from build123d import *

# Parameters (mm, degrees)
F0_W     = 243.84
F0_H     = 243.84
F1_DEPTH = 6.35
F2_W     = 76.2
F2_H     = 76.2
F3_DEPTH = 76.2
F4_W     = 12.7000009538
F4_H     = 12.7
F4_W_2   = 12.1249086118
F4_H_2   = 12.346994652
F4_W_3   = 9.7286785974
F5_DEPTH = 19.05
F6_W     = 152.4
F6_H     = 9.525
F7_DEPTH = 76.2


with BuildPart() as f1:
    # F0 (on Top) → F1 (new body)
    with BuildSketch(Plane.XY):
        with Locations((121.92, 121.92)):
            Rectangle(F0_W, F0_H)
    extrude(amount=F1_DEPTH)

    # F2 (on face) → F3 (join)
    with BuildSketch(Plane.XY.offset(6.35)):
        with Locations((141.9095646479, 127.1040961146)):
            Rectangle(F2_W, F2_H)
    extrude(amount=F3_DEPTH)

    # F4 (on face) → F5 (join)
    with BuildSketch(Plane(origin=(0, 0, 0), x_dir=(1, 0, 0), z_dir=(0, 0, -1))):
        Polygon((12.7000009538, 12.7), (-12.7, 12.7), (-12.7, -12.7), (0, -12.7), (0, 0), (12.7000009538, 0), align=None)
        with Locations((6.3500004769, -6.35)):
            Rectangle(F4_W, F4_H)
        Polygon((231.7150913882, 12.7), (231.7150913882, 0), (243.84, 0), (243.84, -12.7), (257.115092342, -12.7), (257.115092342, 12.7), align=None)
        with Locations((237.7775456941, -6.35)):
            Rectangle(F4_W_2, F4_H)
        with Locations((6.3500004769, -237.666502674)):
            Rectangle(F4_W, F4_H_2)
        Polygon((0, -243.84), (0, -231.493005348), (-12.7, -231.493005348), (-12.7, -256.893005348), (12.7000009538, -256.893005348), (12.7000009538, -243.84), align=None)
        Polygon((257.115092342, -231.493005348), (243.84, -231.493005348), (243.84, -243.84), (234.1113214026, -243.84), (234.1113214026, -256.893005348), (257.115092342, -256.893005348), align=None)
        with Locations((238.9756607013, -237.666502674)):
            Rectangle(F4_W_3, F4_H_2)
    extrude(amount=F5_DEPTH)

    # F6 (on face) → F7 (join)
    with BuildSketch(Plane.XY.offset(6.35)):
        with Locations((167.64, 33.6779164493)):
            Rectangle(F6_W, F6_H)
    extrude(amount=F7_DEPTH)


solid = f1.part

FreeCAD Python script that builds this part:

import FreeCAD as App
import Part
import Sketcher
from FreeCAD import Vector
Q = App.Units.Quantity

doc = App.newDocument("Part")
params = doc.addObject("Spreadsheet::Sheet", "Params")
for row, (alias, value) in enumerate([
    ("sketch1_width", "9.6 in"),
    ("pad1_length", "0.25 in"),
    ("sketch2_width", "3 in"),
    ("pad2_length", "3 in"),
    ("sketch3_width", "1 in"),
    ("pad3_length", "0.75 in"),
    ("sketch4_width", "6 in"),
    ("sketch4_height", "0.375 in"),
    ("pad4_length", "3 in"),
], start=1):
    params.set(f"A{row}", alias)
    params.set(f"B{row}", "=" + value)
    params.setAlias(f"B{row}", alias)

body = doc.addObject("PartDesign::Body", "Body")

sketch1 = body.newObject("Sketcher::SketchObject", "Sketch")
sketch1.AttachmentSupport = (doc.getObject("XY_Plane"), [""])
sketch1.MapMode = "FlatFace"
sketch1.addGeometry([
    Part.LineSegment(Vector(0, 244, 0), Vector(0, 0, 0)),
    Part.LineSegment(Vector(0, 0, 0), Vector(244, 0, 0)),
    Part.LineSegment(Vector(244, 0, 0), Vector(244, 244, 0)),
    Part.LineSegment(Vector(244, 244, 0), Vector(0, 244, 0)),
], False)
sketch1.addConstraint([
    Sketcher.Constraint("Coincident", 0, 2, 1, 1),
    Sketcher.Constraint("Coincident", 1, 2, 2, 1),
    Sketcher.Constraint("Coincident", 2, 2, 3, 1),
    Sketcher.Constraint("Coincident", 3, 2, 0, 1),
    Sketcher.Constraint("Vertical", 0),
    Sketcher.Constraint("Horizontal", 1),
    Sketcher.Constraint("Vertical", 2),
    Sketcher.Constraint("Horizontal", 3),
    Sketcher.Constraint("Coincident", 0, 2, -1, 1),
    Sketcher.Constraint("Equal", 3, 0),
    Sketcher.Constraint("DistanceX", 1, 1, 1, 2, Q("9.6 in")),
])
sketch1.setExpression("Constraints[10]", "Params.sketch1_width")
pad1 = body.newObject("PartDesign::Pad", "Pad")
pad1.Profile = sketch1
pad1.setExpression("Length", "Params.pad1_length")

sketch2 = body.newObject("Sketcher::SketchObject", "Sketch001")
sketch2.AttachmentSupport = (doc.getObject("XY_Plane"), [""])
sketch2.MapMode = "FlatFace"
sketch2.AttachmentOffset = App.Placement(Vector(0, 0, 0.25 * 25.4), App.Rotation())
sketch2.addGeometry([
    Part.LineSegment(Vector(104, 165, 0), Vector(104, 89, 0)),
    Part.LineSegment(Vector(104, 89, 0), Vector(180, 89, 0)),
    Part.LineSegment(Vector(180, 89, 0), Vector(180, 165, 0)),
    Part.LineSegment(Vector(180, 165, 0), Vector(104, 165, 0)),
], False)
sketch2.addConstraint([
    Sketcher.Constraint("Coincident", 0, 2, 1, 1),
    Sketcher.Constraint("Coincident", 1, 2, 2, 1),
    Sketcher.Constraint("Coincident", 2, 2, 3, 1),
    Sketcher.Constraint("Coincident", 3, 2, 0, 1),
    Sketcher.Constraint("Vertical", 0),
    Sketcher.Constraint("Horizontal", 1),
    Sketcher.Constraint("Vertical", 2),
    Sketcher.Constraint("Horizontal", 3),
    Sketcher.Constraint("Equal", 3, 0),
    Sketcher.Constraint("DistanceX", 1, 1, 1, 2, Q("3 in")),
    Sketcher.Constraint("DistanceX", -1, 1, 0, 2, Q("103.809565 mm")),
    Sketcher.Constraint("DistanceY", -1, 1, 0, 2, Q("89.004096 mm")),
])
sketch2.setExpression("Constraints[9]", "Params.sketch2_width")
pad2 = body.newObject("PartDesign::Pad", "Pad001")
pad2.Profile = sketch2
pad2.setExpression("Length", "Params.pad2_length")

sketch3 = body.newObject("Sketcher::SketchObject", "Sketch002")
sketch3.AttachmentSupport = (doc.getObject("XY_Plane"), [""])
sketch3.MapMode = "FlatFace"
sketch3.addGeometry([
    Part.LineSegment(Vector(13, -13, 0), Vector(-13, -13, 0)),
    Part.LineSegment(Vector(-13, -13, 0), Vector(-13, 13, 0)),
    Part.LineSegment(Vector(-13, 13, 0), Vector(13, 13, 0)),
    Part.LineSegment(Vector(13, 13, 0), Vector(13, -13, 0)),
    Part.LineSegment(Vector(232, -13, 0), Vector(232, 13, 0)),
    Part.LineSegment(Vector(232, 13, 0), Vector(257, 13, 0)),
    Part.LineSegment(Vector(257, 13, 0), Vector(257, -13, 0)),
    Part.LineSegment(Vector(257, -13, 0), Vector(232, -13, 0)),
    Part.LineSegment(Vector(13, 231, 0), Vector(-13, 231, 0)),
    Part.LineSegment(Vector(-13, 231, 0), Vector(-13, 257, 0)),
    Part.LineSegment(Vector(-13, 257, 0), Vector(13, 257, 0)),
    Part.LineSegment(Vector(13, 257, 0), Vector(13, 231, 0)),
    Part.LineSegment(Vector(257, 231, 0), Vector(234, 231, 0)),
    Part.LineSegment(Vector(234, 231, 0), Vector(234, 257, 0)),
    Part.LineSegment(Vector(234, 257, 0), Vector(257, 257, 0)),
    Part.LineSegment(Vector(257, 257, 0), Vector(257, 231, 0)),
], False)
sketch3.addConstraint([
    Sketcher.Constraint("Coincident", 0, 2, 1, 1),
    Sketcher.Constraint("Coincident", 1, 2, 2, 1),
    Sketcher.Constraint("Coincident", 2, 2, 3, 1),
    Sketcher.Constraint("Coincident", 3, 2, 0, 1),
    Sketcher.Constraint("Coincident", 4, 2, 5, 1),
    Sketcher.Constraint("Coincident", 5, 2, 6, 1),
    Sketcher.Constraint("Coincident", 6, 2, 7, 1),
    Sketcher.Constraint("Coincident", 7, 2, 4, 1),
    Sketcher.Constraint("Coincident", 8, 2, 9, 1),
    Sketcher.Constraint("Coincident", 9, 2, 10, 1),
    Sketcher.Constraint("Coincident", 10, 2, 11, 1),
    Sketcher.Constraint("Coincident", 11, 2, 8, 1),
    Sketcher.Constraint("Coincident", 12, 2, 13, 1),
    Sketcher.Constraint("Coincident", 13, 2, 14, 1),
    Sketcher.Constraint("Coincident", 14, 2, 15, 1),
    Sketcher.Constraint("Coincident", 15, 2, 12, 1),
    Sketcher.Constraint("Horizontal", 0),
    Sketcher.Constraint("Vertical", 1),
    Sketcher.Constraint("Horizontal", 2),
    Sketcher.Constraint("Vertical", 3),
    Sketcher.Constraint("Vertical", 4),
    Sketcher.Constraint("Horizontal", 5),
    Sketcher.Constraint("Vertical", 6),
    Sketcher.Constraint("Horizontal", 7),
    Sketcher.Constraint("Horizontal", 8),
    Sketcher.Constraint("Vertical", 9),
    Sketcher.Constraint("Horizontal", 10),
    Sketcher.Constraint("Vertical", 11),
    Sketcher.Constraint("Horizontal", 12),
    Sketcher.Constraint("Vertical", 13),
    Sketcher.Constraint("Horizontal", 14),
    Sketcher.Constraint("Vertical", 15),
    Sketcher.Constraint("Symmetric", 0, 2, 2, 2, -1, 1),
    Sketcher.Constraint("Horizontal", 2, 2, 4, 2),
    Sketcher.Constraint("Horizontal", 3, 2, 6, 2),
    Sketcher.Constraint("Horizontal", 11, 2, 12, 2),
    Sketcher.Constraint("Horizontal", 10, 2, 13, 2),
    Sketcher.Constraint("Vertical", 1, 2, 8, 2),
    Sketcher.Constraint("Vertical", 3, 2, 10, 2),
    Sketcher.Constraint("Vertical", 6, 2, 14, 2),
    Sketcher.Constraint("Equal", 2, 5),
    Sketcher.Constraint("Equal", 10, 1),
    Sketcher.Constraint("Equal", 6, 9),
    Sketcher.Constraint("DistanceX", 0, 2, 0, 1, Q("1 in")),
    Sketcher.Constraint("DistanceX", 12, 2, 12, 1, Q("23.003771 mm")),
    Sketcher.Constraint("DistanceX", -1, 1, 4, 2, Q("231.715091 mm")),
    Sketcher.Constraint("DistanceY", -1, 1, 8, 2, Q("231.493005 mm")),
])
sketch3.setExpression("Constraints[43]", "Params.sketch3_width")
pad3 = body.newObject("PartDesign::Pad", "Pad002")
pad3.Profile = sketch3
pad3.setExpression("Length", "Params.pad3_length")
pad3.Reversed = True

sketch4 = body.newObject("Sketcher::SketchObject", "Sketch003")
sketch4.AttachmentSupport = (doc.getObject("XY_Plane"), [""])
sketch4.MapMode = "FlatFace"
sketch4.AttachmentOffset = App.Placement(Vector(0, 0, 0.25 * 25.4), App.Rotation())
sketch4.addGeometry([
    Part.LineSegment(Vector(91, 38, 0), Vector(91, 29, 0)),
    Part.LineSegment(Vector(91, 29, 0), Vector(244, 29, 0)),
    Part.LineSegment(Vector(244, 29, 0), Vector(244, 38, 0)),
    Part.LineSegment(Vector(244, 38, 0), Vector(91, 38, 0)),
], False)
sketch4.addConstraint([
    Sketcher.Constraint("Coincident", 0, 2, 1, 1),
    Sketcher.Constraint("Coincident", 1, 2, 2, 1),
    Sketcher.Constraint("Coincident", 2, 2, 3, 1),
    Sketcher.Constraint("Coincident", 3, 2, 0, 1),
    Sketcher.Constraint("Vertical", 0),
    Sketcher.Constraint("Horizontal", 1),
    Sketcher.Constraint("Vertical", 2),
    Sketcher.Constraint("Horizontal", 3),
    Sketcher.Constraint("DistanceX", 1, 1, 1, 2, Q("6 in")),
    Sketcher.Constraint("DistanceX", -1, 1, 0, 2, Q("3.6 in")),
    Sketcher.Constraint("DistanceY", 0, 2, 0, 1, Q("0.375 in")),
    Sketcher.Constraint("DistanceY", -1, 1, 0, 2, Q("28.915416 mm")),
])
sketch4.setExpression("Constraints[8]", "Params.sketch4_width")
sketch4.setExpression("Constraints[10]", "Params.sketch4_height")
pad4 = body.newObject("PartDesign::Pad", "Pad003")
pad4.Profile = sketch4
pad4.setExpression("Length", "Params.pad4_length")

doc.recompute()
